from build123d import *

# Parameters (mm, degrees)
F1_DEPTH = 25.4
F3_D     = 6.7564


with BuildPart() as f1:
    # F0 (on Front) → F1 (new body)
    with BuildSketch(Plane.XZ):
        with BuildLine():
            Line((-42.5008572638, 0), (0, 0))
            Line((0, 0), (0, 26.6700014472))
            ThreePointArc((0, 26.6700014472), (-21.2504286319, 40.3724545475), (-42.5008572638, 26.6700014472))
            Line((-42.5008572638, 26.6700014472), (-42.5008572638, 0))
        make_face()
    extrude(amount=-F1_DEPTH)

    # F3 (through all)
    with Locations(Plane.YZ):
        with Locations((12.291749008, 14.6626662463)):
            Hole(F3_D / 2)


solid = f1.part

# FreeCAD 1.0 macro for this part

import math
import FreeCAD as App
import Part
import Sketcher

V = App.Vector
Q = App.Units.Quantity

doc = App.newDocument("Part")
body = doc.addObject("PartDesign::Body", "Body")

# Sketch on XZ plane
sketch1 = body.newObject("Sketcher::SketchObject", "Sketch")
sketch1.AttachmentSupport = (doc.getObject("XZ_Plane"), [""])
sketch1.MapMode = "FlatFace"
sketch1.addGeometry([
    Part.LineSegment(V(-42.500857, 0, 0), V(0, 0, 0)),
    Part.LineSegment(V(0, 0, 0), V(0, 26.670001, 0)),
    Part.ArcOfCircle(Part.Circle(V(-21.250429, 17.04313, 0), V(0, 0, 1), 23.329324), math.radians(24.371481), math.radians(155.628519)),
    Part.LineSegment(V(-42.500857, 26.670001, 0), V(-42.500857, 0, 0)),
], False)
sketch1.addConstraint([
    Sketcher.Constraint("Coincident", 0, 2, 1, 1),
    Sketcher.Constraint("Coincident", 1, 2, 2, 1),
    Sketcher.Constraint("Coincident", 2, 2, 3, 1),
    Sketcher.Constraint("Coincident", 3, 2, 0, 1),
    Sketcher.Constraint("Horizontal", 0),
    Sketcher.Constraint("Vertical", 1),
    Sketcher.Constraint("Vertical", 3),
    Sketcher.Constraint("Coincident", 0, 2, -1, 1),
    Sketcher.Constraint("Horizontal", 1, 2, 2, 2),
    Sketcher.Constraint("DistanceY", 1, 1, 1, 2, Q("1.0500001 in")),
    Sketcher.Constraint("Radius", 2, 23.329324),
    Sketcher.Constraint("DistanceX", 0, 1, 0, 2, 42.500857),
])
pad1 = body.newObject("PartDesign::Pad", "Pad")
pad1.Profile = sketch1
pad1.Length = Q("1 in")
pad1.Reversed = True

# Sketch on YZ plane
sketch2 = body.newObject("Sketcher::SketchObject", "Sketch001")
sketch2.AttachmentSupport = (doc.getObject("YZ_Plane"), [""])
sketch2.MapMode = "FlatFace"
sketch2.addGeometry(Part.Circle(V(12.291749, 14.662666, 0), V(0, 0, 1), 3.3782), False)
sketch2.addConstraint([
    Sketcher.Constraint("Diameter", 0, Q("0.266 in")),
    Sketcher.Constraint("DistanceX", -1, 1, 0, 3, 12.291749),
    Sketcher.Constraint("DistanceY", -1, 1, 0, 3, 14.662666),
])
doc.recompute()
hole = body.newObject("PartDesign::Hole", "Hole")
hole.Profile = sketch2
hole.ThreadType = "None"
hole.Diameter = Q("0.266 in")
hole.DepthType = "ThroughAll"

doc.recompute()
